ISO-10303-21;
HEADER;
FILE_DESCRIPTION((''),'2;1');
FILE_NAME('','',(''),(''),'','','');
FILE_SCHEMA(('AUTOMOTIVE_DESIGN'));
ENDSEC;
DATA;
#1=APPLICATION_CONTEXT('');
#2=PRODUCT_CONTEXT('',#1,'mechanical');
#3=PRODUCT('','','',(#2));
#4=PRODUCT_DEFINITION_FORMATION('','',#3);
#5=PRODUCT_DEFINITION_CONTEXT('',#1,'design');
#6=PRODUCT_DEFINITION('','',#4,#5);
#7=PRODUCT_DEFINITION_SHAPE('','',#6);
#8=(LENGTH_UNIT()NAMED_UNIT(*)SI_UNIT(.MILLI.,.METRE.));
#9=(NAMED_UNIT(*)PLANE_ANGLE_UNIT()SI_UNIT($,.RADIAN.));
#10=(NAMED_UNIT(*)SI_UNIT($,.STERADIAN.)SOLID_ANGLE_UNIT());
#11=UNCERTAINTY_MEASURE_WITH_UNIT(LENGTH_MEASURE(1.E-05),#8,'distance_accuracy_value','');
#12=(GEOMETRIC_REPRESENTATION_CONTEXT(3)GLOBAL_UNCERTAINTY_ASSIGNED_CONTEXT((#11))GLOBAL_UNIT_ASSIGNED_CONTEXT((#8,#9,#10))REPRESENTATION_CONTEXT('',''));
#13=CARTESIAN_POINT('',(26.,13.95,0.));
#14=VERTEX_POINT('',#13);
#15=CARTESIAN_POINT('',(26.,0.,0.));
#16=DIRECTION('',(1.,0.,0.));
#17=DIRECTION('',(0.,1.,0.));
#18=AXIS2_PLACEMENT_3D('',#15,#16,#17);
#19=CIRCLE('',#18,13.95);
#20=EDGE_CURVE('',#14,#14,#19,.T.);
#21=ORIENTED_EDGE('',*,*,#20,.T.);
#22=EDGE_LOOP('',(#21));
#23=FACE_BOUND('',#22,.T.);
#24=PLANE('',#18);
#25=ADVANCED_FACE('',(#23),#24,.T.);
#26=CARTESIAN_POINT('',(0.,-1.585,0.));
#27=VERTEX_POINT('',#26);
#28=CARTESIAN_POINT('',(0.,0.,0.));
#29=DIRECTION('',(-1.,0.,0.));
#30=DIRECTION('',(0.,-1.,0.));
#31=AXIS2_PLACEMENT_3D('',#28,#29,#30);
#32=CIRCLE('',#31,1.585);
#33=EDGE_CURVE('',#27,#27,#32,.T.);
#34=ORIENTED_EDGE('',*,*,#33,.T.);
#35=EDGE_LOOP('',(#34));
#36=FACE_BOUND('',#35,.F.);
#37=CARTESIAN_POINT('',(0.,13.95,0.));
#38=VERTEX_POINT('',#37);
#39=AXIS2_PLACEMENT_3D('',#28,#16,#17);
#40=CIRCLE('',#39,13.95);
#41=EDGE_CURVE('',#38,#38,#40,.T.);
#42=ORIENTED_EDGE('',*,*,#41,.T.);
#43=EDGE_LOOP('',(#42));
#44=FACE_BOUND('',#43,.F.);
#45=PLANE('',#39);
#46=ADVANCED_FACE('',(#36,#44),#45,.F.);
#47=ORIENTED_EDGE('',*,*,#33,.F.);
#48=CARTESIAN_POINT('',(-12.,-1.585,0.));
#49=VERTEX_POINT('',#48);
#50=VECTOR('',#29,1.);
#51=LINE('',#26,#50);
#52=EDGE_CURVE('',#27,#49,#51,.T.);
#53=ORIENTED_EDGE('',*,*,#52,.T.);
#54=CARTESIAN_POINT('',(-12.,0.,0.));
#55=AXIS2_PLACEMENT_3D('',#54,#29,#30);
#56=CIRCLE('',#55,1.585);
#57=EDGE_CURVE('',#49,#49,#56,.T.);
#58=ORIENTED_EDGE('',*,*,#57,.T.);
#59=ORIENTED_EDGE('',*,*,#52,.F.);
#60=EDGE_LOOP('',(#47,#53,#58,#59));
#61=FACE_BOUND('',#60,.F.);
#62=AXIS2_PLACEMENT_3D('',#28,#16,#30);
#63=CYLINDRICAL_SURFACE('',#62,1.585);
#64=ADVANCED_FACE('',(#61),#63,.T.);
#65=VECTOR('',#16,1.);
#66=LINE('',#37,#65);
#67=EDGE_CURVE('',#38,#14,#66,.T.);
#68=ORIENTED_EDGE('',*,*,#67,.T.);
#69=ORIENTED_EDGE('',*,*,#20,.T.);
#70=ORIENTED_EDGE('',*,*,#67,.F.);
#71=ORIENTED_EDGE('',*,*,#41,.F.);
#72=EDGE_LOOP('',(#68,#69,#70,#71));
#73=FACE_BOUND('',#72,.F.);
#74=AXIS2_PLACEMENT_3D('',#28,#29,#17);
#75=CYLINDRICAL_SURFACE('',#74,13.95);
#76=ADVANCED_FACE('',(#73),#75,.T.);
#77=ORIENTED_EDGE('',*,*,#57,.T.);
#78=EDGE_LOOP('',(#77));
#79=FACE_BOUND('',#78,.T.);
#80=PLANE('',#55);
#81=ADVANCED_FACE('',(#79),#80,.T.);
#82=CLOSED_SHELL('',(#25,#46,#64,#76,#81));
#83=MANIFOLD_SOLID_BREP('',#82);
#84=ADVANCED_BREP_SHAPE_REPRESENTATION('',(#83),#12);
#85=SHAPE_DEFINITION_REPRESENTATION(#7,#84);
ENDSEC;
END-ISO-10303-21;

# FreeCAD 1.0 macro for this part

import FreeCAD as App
import Part
import Sketcher
from FreeCAD import Vector
Q = App.Units.Quantity

doc = App.newDocument("Part")
params = doc.addObject("Spreadsheet::Sheet", "Params")
for row, (alias, value) in enumerate([
    ("sketch1_diameter", "27.9 mm"),
    ("pad1_length", "26 mm"),
    ("sketch2_diameter", "3.17 mm"),
    ("pad2_length", "12 mm"),
], start=1):
    params.set(f"A{row}", alias)
    params.set(f"B{row}", "=" + value)
    params.setAlias(f"B{row}", alias)

body = doc.addObject("PartDesign::Body", "Body")

sketch1 = doc.addObject("Sketcher::SketchObject", "Sketch")
body.addObject(sketch1)
sketch1.AttachmentSupport = (doc.YZ_Plane, [""])
sketch1.MapMode = "FlatFace"
sketch1.addGeometry(Part.Circle(Vector(0, 0, 0), Vector(0, 0, 1), 14), False)
sketch1.addConstraint([
    Sketcher.Constraint("Coincident", 0, 3, -1, 1),
    Sketcher.Constraint("Diameter", 0, Q("27.9 mm")),
])
sketch1.setExpression("Constraints[1]", "Params.sketch1_diameter")
pad1 = doc.addObject("PartDesign::Pad", "Pad")
body.addObject(pad1)
pad1.Profile = sketch1
pad1.setExpression("Length", "Params.pad1_length")

sketch2 = doc.addObject("Sketcher::SketchObject", "Sketch001")
body.addObject(sketch2)
sketch2.AttachmentSupport = (doc.YZ_Plane, [""])
sketch2.MapMode = "FlatFace"
sketch2.addGeometry(Part.Circle(Vector(0, 0, 0), Vector(0, 0, 1), 1.6), False)
sketch2.addConstraint([
    Sketcher.Constraint("Coincident", 0, 3, -1, 1),
    Sketcher.Constraint("Diameter", 0, Q("3.17 mm")),
])
sketch2.setExpression("Constraints[1]", "Params.sketch2_diameter")
pad2 = doc.addObject("PartDesign::Pad", "Pad001")
body.addObject(pad2)
pad2.Profile = sketch2
pad2.setExpression("Length", "Params.pad2_length")
pad2.Reversed = True

doc.recompute()
